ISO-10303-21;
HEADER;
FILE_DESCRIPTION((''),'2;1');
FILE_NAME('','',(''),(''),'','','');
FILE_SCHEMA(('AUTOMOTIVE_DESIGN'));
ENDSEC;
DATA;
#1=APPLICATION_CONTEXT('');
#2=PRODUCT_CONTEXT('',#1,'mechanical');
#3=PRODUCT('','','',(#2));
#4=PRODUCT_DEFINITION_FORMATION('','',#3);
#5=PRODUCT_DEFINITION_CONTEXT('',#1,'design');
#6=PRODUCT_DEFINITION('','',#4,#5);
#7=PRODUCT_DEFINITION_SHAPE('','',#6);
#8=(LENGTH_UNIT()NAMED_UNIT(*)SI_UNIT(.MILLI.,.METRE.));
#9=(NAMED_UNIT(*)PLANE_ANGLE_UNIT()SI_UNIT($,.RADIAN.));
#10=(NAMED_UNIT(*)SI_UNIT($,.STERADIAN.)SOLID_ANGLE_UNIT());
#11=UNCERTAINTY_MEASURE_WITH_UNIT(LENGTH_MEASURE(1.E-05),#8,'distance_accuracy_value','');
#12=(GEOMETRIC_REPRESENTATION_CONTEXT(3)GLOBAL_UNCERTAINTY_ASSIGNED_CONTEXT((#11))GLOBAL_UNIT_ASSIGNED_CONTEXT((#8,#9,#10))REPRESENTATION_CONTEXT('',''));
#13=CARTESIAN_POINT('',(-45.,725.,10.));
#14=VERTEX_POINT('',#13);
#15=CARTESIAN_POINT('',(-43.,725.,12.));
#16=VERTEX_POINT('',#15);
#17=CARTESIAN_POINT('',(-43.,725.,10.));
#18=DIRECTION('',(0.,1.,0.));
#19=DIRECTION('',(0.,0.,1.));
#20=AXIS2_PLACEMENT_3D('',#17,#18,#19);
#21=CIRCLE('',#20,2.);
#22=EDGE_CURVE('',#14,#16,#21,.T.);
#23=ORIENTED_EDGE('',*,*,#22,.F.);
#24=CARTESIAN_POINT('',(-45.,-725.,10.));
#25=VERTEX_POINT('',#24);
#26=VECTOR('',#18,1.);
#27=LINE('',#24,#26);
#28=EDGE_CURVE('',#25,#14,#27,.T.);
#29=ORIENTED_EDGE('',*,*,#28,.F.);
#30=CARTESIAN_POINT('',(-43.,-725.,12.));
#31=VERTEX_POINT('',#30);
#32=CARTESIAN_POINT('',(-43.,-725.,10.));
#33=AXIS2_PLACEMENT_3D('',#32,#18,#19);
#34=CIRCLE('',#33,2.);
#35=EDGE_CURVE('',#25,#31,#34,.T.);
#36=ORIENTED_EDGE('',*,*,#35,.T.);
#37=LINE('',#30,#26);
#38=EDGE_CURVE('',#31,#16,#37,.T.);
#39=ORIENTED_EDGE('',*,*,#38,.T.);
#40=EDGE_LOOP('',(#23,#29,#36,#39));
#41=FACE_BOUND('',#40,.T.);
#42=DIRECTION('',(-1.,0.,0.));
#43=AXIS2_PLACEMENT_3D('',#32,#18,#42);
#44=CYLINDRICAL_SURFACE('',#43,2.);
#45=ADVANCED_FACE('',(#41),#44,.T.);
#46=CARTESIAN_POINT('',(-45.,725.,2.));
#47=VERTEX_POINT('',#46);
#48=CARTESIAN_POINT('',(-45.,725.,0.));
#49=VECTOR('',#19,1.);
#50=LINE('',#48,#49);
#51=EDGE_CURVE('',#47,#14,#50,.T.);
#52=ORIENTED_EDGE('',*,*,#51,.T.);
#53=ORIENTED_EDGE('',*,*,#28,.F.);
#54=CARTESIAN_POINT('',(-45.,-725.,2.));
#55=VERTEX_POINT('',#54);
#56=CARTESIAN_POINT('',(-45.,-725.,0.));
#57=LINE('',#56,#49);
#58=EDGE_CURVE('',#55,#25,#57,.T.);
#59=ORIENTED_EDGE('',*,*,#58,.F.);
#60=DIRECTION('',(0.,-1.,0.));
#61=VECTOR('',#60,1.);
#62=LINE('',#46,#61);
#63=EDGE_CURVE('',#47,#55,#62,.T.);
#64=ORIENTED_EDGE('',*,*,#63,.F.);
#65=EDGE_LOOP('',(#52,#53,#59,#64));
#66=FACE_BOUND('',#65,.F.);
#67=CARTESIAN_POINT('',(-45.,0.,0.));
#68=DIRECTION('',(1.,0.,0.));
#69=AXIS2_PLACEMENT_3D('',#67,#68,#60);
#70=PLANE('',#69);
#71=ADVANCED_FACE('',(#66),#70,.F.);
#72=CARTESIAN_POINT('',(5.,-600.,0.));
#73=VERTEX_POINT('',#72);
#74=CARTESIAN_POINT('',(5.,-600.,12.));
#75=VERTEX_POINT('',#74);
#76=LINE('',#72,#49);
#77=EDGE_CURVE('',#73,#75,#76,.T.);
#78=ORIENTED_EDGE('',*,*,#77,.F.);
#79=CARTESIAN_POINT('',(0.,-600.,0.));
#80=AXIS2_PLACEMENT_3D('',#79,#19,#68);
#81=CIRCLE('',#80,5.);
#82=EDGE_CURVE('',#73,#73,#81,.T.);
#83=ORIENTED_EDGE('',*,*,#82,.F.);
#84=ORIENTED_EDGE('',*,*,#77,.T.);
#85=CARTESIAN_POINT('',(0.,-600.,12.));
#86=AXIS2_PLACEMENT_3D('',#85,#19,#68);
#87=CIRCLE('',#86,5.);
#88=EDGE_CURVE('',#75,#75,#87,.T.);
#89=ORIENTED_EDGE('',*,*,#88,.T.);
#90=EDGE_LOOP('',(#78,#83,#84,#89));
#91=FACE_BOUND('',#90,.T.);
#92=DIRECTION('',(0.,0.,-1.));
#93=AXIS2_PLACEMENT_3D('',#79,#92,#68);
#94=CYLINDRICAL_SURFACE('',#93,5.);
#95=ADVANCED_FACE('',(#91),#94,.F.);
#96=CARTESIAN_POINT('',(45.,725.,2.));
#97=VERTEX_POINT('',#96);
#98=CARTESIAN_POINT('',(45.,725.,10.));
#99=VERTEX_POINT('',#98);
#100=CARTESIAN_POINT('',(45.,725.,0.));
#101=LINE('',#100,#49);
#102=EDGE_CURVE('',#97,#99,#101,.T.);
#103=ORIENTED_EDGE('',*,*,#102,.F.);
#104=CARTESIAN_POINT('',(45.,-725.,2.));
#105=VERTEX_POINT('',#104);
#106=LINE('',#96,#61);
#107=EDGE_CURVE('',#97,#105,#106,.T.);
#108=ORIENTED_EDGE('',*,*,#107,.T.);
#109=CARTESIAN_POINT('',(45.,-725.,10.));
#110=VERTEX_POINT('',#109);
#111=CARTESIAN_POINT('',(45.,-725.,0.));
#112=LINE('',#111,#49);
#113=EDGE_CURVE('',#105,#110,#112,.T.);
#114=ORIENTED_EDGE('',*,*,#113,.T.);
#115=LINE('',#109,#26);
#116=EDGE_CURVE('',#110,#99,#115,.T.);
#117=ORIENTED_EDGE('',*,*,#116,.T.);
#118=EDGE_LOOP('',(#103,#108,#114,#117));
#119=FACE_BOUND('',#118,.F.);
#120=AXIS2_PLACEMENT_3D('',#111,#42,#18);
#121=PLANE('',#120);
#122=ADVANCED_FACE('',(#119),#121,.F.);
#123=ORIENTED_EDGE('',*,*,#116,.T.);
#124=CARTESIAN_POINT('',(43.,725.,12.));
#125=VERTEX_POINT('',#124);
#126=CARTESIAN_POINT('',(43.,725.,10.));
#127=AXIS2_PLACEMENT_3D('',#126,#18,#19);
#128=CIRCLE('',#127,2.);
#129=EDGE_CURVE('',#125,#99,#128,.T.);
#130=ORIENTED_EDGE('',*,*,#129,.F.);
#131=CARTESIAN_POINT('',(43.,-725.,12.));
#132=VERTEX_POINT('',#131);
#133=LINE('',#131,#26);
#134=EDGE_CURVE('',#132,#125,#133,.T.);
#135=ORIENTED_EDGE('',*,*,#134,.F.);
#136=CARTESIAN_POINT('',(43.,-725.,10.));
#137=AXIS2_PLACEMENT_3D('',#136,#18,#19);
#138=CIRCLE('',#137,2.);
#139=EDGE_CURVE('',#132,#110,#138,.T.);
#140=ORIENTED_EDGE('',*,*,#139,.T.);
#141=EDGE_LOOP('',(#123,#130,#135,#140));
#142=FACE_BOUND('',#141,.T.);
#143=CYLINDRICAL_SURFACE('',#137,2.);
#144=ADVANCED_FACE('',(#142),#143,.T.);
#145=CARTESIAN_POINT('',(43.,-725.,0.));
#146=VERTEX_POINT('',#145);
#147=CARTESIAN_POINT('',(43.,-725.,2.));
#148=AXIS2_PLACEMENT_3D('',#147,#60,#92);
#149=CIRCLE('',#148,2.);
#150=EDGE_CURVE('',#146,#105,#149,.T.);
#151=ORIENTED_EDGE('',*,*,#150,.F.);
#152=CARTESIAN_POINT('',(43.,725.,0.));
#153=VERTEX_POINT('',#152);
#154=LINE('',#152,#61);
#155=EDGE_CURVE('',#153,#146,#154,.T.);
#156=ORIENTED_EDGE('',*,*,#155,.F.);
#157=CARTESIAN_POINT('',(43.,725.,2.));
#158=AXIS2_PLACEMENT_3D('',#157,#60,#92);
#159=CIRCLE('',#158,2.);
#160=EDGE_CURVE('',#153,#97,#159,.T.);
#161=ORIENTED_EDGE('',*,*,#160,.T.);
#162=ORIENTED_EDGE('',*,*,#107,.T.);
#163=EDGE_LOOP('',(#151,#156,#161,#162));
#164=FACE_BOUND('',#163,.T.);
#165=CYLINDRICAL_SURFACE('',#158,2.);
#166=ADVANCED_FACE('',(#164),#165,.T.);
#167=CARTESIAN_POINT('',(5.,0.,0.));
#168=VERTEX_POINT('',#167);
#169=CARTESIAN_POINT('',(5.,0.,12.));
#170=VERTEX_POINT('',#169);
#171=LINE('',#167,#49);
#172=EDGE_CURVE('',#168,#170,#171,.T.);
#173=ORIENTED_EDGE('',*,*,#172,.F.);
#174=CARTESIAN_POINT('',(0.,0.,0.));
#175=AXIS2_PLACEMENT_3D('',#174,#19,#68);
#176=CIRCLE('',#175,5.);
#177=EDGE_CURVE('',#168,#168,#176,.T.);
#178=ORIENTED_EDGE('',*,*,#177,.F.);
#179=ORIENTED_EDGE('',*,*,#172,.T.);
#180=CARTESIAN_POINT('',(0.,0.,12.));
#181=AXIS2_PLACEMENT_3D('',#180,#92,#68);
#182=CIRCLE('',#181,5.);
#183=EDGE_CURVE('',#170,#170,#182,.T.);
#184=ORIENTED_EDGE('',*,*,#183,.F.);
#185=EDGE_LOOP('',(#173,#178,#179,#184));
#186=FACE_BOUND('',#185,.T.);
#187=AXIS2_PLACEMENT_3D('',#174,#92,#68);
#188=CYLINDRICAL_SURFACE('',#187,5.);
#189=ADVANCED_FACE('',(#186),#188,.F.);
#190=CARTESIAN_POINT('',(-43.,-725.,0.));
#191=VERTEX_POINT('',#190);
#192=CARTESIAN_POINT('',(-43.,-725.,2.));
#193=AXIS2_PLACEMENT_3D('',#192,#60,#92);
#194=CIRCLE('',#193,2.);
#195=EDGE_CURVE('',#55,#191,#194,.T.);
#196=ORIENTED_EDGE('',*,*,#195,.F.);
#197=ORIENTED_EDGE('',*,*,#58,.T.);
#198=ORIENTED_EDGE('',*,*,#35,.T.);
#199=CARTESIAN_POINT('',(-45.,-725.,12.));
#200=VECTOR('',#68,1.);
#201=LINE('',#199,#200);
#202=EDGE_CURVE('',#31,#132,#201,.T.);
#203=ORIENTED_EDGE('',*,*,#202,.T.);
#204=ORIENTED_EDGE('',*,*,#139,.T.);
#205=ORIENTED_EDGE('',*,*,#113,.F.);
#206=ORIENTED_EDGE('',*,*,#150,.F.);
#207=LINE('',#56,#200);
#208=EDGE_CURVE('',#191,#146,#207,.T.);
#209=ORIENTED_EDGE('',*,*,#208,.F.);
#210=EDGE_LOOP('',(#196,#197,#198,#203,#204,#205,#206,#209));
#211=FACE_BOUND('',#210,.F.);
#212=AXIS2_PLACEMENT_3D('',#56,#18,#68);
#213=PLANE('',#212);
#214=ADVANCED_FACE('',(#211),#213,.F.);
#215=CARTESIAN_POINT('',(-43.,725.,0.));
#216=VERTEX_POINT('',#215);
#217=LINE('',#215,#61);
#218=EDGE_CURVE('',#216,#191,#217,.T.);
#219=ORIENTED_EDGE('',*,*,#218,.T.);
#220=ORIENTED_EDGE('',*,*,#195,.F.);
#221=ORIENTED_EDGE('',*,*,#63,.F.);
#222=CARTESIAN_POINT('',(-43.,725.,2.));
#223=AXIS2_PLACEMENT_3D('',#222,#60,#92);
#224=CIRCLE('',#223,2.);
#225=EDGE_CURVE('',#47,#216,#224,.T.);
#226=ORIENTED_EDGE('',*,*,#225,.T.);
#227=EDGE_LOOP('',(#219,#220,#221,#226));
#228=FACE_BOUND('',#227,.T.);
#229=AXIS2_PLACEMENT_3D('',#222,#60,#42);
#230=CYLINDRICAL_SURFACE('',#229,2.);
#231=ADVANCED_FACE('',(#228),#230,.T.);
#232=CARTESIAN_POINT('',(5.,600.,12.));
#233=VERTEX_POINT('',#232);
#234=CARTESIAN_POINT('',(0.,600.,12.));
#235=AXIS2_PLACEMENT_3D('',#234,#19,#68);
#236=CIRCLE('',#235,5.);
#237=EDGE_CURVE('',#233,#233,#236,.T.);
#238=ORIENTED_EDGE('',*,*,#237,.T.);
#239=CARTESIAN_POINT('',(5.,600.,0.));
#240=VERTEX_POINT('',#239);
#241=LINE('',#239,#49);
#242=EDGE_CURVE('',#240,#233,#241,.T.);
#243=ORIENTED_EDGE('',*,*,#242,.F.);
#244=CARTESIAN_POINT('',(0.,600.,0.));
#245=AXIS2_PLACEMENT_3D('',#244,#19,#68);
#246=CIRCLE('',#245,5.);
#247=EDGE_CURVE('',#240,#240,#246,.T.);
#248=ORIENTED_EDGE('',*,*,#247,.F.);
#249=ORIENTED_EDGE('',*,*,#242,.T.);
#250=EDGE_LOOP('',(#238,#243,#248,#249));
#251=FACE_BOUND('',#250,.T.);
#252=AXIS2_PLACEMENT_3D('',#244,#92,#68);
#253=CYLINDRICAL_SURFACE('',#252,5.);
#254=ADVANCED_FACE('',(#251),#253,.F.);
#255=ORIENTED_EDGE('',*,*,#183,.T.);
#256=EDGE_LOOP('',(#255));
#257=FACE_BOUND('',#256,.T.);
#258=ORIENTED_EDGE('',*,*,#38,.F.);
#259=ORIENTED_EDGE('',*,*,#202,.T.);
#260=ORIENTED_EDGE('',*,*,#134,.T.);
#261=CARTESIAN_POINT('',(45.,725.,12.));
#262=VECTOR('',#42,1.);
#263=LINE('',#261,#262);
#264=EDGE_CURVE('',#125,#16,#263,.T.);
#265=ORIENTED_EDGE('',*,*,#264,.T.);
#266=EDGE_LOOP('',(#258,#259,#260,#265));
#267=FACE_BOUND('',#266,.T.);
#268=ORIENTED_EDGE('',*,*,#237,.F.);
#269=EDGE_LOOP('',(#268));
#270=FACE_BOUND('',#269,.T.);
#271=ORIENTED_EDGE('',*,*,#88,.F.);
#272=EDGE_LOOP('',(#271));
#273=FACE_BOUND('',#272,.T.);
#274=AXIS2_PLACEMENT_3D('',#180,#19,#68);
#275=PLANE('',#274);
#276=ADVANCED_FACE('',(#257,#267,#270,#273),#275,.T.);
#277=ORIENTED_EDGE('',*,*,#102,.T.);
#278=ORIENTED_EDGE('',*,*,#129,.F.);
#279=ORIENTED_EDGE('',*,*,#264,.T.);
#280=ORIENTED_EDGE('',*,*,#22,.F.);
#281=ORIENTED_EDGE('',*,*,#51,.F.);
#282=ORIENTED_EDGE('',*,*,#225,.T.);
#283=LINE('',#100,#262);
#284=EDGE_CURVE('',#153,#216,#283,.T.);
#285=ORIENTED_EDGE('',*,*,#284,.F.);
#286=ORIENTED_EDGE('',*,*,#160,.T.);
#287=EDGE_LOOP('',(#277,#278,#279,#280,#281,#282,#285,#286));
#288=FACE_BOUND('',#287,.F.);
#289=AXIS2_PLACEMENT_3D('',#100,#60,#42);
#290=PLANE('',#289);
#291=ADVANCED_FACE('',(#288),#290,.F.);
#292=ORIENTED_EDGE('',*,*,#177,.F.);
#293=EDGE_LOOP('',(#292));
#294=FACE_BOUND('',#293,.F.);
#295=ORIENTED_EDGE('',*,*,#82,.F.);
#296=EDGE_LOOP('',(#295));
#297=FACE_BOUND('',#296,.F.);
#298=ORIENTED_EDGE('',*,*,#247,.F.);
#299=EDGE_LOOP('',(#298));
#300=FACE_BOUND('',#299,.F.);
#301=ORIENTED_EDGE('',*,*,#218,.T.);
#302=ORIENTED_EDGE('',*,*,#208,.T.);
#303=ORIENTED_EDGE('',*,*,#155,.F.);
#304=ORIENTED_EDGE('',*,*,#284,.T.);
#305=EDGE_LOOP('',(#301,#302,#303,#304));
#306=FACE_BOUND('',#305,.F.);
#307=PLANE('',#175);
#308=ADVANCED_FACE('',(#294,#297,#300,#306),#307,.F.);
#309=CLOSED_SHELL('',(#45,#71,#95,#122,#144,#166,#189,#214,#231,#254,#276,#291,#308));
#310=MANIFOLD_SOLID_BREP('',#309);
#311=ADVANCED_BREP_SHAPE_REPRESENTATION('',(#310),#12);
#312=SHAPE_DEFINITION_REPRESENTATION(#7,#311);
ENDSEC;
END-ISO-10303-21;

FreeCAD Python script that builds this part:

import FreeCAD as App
import Part
import Sketcher
from FreeCAD import Vector
Q = App.Units.Quantity


def edges_at(feature, points):
    """Names of the edges that pass closest to the given points."""
    edges = feature.Shape.Edges
    near = lambda p: min(range(len(edges)), key=lambda i: edges[i].distToShape(Part.Vertex(*p))[0])
    return sorted({f"Edge{near(p) + 1}" for p in points})


def add_polygon(sketch, points):
    """Adds a closed chain of lines whose ends are joined by coincident constraints."""
    first, n = sketch.GeometryCount, len(points)
    for a, b in zip(points, points[1:] + points[:1]):
        sketch.addGeometry(Part.LineSegment(App.Vector(*a, 0), App.Vector(*b, 0)), False)
    for i in range(n):
        sketch.addConstraint(Sketcher.Constraint("Coincident", first + i, 2, first + (i + 1) % n, 1))

doc = App.newDocument("Part")
body = doc.addObject("PartDesign::Body", "Body")

# Sketch on XY plane
sketch1 = body.newObject("Sketcher::SketchObject", "Sketch")
sketch1.AttachmentSupport = (doc.getObject("XY_Plane"), [""])
sketch1.MapMode = "FlatFace"
add_polygon(sketch1, [(-45, -725), (45, -725), (45, 725), (-45, 725)])  # lines 0-3
sketch1.addGeometry(Part.Circle(Vector(0, 0, 0), Vector(0, 0, 1), 5), False)  # 4
sketch1.addGeometry(Part.Circle(Vector(0, -600, 0), Vector(0, 0, 1), 5), False)  # 5
sketch1.addGeometry(Part.Circle(Vector(0, 600, 0), Vector(0, 0, 1), 5), False)  # 6
sketch1.addConstraint([
    Sketcher.Constraint("Horizontal", 0),
    Sketcher.Constraint("Vertical", 1),
    Sketcher.Constraint("Horizontal", 2),
    Sketcher.Constraint("Vertical", 3),
    Sketcher.Constraint("Coincident", 4, 3, -1, 1),
    Sketcher.Constraint("Equal", 4, 5),
    Sketcher.Constraint("Equal", 5, 6),
    Sketcher.Constraint("Symmetric", 5, 3, 6, 3, -1, 1),
    Sketcher.Constraint("Symmetric", 0, 2, 2, 2, -1, 1),
    Sketcher.Constraint("PointOnObject", 5, 3, -2),
    Sketcher.Constraint("Diameter", 4, Q("10 mm")),
    Sketcher.Constraint("DistanceX", 0, 1, 0, 2, Q("90 mm")),
    Sketcher.Constraint("DistanceY", 1, 1, 1, 2, Q("1450 mm")),
    Sketcher.Constraint("DistanceY", 5, 3, -1, 1, Q("600 mm")),
])
pad1 = body.newObject("PartDesign::Pad", "Pad")
pad1.Profile = sketch1
pad1.Length = 12
doc.recompute()

fillet = body.newObject("PartDesign::Fillet", "Fillet")
fillet.Base = (pad1, edges_at(pad1, [
    (-45, -362.5, 12),
    (-45, 362.5, 12),
    (-45, -362.5, 0),
    (-45, 362.5, 0),
    (45, 0, 12),
    (45, 0, 0),
]))
fillet.Radius = 2

doc.recompute()
